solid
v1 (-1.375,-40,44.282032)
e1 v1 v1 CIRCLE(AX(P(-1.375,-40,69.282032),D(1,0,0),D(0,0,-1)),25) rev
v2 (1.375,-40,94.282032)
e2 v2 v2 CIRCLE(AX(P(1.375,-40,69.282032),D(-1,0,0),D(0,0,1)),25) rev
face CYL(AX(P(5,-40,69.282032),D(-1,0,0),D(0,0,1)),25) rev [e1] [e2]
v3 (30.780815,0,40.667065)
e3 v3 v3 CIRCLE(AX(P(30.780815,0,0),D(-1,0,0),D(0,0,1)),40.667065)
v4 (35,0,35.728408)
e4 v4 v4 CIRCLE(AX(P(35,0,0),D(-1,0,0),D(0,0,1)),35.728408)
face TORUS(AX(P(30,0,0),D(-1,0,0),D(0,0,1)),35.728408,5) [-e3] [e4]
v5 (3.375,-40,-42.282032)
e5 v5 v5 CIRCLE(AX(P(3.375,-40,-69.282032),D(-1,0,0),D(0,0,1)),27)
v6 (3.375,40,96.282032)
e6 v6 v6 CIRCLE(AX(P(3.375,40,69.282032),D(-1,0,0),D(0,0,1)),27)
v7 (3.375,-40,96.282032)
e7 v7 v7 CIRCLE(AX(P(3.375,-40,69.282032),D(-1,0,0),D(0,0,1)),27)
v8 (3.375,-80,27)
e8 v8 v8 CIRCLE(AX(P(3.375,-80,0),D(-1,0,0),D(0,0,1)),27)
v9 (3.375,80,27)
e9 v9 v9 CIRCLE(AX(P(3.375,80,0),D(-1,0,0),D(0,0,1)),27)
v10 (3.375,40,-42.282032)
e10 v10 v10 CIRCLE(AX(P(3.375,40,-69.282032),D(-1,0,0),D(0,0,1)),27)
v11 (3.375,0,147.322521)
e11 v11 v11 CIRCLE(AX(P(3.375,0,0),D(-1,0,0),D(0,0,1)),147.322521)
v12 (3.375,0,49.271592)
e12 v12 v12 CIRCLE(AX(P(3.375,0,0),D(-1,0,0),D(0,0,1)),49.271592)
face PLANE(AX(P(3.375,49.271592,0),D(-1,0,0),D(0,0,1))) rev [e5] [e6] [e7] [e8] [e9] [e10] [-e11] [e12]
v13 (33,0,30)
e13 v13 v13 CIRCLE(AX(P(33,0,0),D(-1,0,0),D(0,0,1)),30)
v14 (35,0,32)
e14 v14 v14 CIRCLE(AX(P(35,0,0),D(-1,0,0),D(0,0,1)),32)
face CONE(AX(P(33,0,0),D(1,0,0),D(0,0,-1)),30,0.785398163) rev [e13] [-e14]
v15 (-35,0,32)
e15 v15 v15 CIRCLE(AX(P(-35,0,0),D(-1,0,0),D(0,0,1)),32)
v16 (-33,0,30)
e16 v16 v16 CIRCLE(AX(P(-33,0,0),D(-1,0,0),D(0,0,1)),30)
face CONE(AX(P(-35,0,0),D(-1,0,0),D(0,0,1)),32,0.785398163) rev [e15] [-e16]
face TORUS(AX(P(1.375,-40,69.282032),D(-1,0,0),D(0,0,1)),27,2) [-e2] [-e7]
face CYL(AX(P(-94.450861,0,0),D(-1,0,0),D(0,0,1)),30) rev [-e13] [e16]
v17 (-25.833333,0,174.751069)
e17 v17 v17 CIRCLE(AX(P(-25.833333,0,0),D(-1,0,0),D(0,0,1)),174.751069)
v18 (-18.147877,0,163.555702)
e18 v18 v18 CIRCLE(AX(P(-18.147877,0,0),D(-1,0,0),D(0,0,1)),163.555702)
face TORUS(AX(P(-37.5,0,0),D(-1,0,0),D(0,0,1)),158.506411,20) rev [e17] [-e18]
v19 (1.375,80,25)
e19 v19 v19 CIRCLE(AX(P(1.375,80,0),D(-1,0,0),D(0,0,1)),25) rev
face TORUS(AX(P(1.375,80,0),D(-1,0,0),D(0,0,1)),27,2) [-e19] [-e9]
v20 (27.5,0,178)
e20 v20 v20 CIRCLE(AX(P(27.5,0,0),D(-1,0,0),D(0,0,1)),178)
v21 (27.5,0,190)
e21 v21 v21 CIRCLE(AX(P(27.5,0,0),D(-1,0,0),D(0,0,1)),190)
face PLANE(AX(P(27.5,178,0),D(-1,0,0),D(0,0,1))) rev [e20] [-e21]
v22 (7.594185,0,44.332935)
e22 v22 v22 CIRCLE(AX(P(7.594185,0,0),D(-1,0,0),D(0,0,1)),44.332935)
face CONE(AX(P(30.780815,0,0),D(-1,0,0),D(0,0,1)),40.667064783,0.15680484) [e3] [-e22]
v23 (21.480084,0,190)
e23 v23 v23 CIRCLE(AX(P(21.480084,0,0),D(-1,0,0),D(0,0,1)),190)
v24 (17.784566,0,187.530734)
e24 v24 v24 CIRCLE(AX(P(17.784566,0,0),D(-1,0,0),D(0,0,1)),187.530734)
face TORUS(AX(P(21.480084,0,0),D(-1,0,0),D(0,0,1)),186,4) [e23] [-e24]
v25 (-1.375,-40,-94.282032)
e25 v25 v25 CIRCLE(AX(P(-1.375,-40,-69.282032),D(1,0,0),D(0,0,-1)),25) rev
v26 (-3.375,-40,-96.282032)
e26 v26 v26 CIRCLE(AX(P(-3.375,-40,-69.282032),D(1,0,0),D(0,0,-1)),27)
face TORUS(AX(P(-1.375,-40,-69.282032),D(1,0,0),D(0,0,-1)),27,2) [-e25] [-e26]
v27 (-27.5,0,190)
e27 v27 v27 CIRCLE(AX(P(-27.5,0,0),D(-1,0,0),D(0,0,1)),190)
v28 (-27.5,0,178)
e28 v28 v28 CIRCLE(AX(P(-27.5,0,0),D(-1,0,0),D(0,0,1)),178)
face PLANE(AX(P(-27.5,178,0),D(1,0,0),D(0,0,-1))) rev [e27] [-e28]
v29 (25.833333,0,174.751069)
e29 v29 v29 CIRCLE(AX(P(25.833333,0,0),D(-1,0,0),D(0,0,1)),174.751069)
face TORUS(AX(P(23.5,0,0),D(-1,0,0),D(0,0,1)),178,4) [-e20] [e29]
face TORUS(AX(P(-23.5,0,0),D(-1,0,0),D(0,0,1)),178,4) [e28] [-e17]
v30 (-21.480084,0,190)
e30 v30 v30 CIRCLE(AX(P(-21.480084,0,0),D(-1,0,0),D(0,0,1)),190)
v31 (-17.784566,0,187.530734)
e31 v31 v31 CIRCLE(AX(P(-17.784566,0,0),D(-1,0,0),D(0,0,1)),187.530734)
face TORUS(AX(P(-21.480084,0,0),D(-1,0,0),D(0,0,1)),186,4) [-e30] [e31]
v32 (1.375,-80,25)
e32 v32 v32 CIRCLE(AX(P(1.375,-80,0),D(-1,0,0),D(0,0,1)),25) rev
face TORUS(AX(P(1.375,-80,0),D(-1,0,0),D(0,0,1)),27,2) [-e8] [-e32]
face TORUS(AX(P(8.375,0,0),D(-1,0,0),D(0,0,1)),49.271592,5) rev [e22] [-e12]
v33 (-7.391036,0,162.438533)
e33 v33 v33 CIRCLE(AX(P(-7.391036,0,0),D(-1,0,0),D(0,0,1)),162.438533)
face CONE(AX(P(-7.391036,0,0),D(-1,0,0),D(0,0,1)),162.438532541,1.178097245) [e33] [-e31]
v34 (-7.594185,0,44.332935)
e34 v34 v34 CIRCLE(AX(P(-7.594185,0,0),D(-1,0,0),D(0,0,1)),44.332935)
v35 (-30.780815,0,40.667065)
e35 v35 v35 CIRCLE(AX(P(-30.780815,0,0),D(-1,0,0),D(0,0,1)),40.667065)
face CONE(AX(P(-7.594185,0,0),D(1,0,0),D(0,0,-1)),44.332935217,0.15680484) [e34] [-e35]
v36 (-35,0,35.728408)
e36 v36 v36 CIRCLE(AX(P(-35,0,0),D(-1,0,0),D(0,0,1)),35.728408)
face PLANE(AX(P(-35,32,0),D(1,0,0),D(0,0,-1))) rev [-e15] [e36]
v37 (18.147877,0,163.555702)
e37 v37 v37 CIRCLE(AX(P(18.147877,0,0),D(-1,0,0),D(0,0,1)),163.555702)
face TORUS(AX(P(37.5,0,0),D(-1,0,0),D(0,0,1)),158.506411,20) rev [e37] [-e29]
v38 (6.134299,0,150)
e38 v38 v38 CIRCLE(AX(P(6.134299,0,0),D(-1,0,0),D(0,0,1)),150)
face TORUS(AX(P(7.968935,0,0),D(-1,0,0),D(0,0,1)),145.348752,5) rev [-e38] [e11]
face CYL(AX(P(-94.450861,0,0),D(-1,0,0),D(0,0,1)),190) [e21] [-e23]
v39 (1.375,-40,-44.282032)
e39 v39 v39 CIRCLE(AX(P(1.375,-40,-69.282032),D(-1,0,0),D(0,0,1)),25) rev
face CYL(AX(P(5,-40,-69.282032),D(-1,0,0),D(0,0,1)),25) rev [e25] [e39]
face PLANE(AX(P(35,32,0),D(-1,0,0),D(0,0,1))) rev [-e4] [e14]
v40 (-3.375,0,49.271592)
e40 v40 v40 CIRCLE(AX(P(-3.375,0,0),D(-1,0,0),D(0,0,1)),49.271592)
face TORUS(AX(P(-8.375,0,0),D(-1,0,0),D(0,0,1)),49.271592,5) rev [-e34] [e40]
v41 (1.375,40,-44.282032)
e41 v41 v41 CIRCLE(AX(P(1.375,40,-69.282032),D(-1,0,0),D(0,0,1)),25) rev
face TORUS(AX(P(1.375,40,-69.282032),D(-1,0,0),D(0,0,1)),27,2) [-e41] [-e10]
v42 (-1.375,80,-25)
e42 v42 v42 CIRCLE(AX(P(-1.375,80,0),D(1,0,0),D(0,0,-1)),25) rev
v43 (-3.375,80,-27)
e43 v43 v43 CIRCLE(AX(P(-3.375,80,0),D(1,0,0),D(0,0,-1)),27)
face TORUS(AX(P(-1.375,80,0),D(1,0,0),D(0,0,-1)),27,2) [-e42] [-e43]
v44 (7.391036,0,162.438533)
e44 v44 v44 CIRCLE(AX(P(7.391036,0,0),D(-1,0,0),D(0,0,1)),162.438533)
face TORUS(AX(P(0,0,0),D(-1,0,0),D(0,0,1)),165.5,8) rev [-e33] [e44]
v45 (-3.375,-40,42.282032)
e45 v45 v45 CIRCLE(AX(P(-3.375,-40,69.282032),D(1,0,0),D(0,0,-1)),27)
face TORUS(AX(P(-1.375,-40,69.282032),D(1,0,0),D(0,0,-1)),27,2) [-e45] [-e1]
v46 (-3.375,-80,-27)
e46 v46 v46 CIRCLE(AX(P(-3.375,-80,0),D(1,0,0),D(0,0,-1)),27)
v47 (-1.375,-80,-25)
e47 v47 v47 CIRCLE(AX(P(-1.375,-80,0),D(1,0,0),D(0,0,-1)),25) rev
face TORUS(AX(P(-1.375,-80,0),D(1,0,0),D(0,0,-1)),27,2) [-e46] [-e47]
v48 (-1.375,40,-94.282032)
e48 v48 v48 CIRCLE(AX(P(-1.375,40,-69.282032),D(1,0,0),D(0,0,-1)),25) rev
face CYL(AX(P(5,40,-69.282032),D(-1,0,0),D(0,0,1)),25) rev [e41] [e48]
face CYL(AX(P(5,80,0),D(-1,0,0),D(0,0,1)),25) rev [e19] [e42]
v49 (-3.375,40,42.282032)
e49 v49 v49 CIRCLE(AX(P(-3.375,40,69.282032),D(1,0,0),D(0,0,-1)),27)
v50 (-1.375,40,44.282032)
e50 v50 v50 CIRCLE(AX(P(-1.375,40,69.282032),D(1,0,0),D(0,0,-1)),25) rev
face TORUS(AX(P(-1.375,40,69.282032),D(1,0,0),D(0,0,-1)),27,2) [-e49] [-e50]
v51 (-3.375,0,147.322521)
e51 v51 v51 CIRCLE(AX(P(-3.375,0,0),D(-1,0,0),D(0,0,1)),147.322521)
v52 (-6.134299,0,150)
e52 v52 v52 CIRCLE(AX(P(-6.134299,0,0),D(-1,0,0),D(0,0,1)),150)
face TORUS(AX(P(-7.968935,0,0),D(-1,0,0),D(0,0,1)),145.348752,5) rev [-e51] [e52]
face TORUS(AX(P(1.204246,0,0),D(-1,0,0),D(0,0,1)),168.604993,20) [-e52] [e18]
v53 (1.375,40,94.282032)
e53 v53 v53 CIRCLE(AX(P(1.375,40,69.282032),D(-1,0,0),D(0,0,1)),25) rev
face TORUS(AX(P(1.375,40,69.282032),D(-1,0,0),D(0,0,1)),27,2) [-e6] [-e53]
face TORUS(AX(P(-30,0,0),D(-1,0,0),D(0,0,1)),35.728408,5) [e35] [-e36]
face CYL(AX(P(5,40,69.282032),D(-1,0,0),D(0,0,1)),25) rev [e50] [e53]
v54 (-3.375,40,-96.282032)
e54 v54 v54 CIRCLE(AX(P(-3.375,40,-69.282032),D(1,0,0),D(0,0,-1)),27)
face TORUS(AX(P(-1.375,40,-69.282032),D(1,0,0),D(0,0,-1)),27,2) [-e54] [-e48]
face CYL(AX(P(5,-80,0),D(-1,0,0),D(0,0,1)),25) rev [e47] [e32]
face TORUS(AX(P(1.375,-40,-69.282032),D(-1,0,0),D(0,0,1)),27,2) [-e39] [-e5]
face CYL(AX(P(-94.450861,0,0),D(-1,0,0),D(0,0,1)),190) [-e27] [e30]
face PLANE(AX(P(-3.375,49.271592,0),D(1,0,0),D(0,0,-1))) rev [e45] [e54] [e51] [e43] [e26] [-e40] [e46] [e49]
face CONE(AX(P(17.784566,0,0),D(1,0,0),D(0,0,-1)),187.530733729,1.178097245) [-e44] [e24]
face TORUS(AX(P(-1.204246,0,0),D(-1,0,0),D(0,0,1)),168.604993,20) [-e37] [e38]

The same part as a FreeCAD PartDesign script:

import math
import FreeCAD as App
import Part
import Sketcher

V = App.Vector
Q = App.Units.Quantity


def edges_at(feature, points):
    """Names of the edges that pass closest to the given points."""
    edges = feature.Shape.Edges
    near = lambda p: min(range(len(edges)), key=lambda i: edges[i].distToShape(Part.Vertex(*p))[0])
    return sorted({f"Edge{near(p) + 1}" for p in points})

doc = App.newDocument("Part")
body = doc.addObject("PartDesign::Body", "Body")

sketch1 = body.newObject("Sketcher::SketchObject", "Sketch")
sketch1.AttachmentSupport = (doc.getObject("XY_Plane"), [""])
sketch1.MapMode = "FlatFace"
sketch1.addGeometry([
    Part.LineSegment(V(-33, 30, 0), V(33, 30, 0)),
    Part.LineSegment(V(33, 30, 0), V(35, 32, 0)),
    Part.LineSegment(V(35, 32, 0), V(35, 35.728408, 0)),
    Part.ArcOfCircle(Part.Circle(V(30, 35.728408, 0), V(0, 0, 1), 5), math.radians(0), math.radians(81.015744)),
    Part.LineSegment(V(30.780815, 40.667065, 0), V(7.594185, 44.332935, 0)),
    Part.ArcOfCircle(Part.Circle(V(8.375, 49.271592, 0), V(0, 0, 1), 5), math.radians(180), math.radians(261.015744)),
    Part.LineSegment(V(3.375, 49.271592, 0), V(3.375, 147.322521, 0)),
    Part.ArcOfCircle(Part.Circle(V(7.968935, 145.348752, 0), V(0, 0, 1), 5), math.radians(111.526235), math.radians(156.749379)),
    Part.ArcOfCircle(Part.Circle(V(-1.204246, 168.604993, 0), V(0, 0, 1), 20), math.radians(-68.473765), math.radians(-14.623399)),
    Part.ArcOfCircle(Part.Circle(V(37.5, 158.506411, 0), V(0, 0, 1), 20), math.radians(125.685335), math.radians(165.376601)),
    Part.ArcOfCircle(Part.Circle(V(23.5, 178, 0), V(0, 0, 1), 4), math.radians(-54.314665), math.radians(0)),
    Part.LineSegment(V(27.5, 178, 0), V(27.5, 190, 0)),
    Part.LineSegment(V(27.5, 190, 0), V(21.480084, 190, 0)),
    Part.ArcOfCircle(Part.Circle(V(21.480084, 186, 0), V(0, 0, 1), 4), math.radians(90), math.radians(157.5)),
    Part.LineSegment(V(17.784566, 187.530734, 0), V(7.391036, 162.438533, 0)),
    Part.ArcOfCircle(Part.Circle(V(0, 165.5, 0), V(0, 0, 1), 8), math.radians(-157.5), math.radians(-22.5)),
    Part.LineSegment(V(-7.391036, 162.438533, 0), V(-17.784566, 187.530734, 0)),
    Part.ArcOfCircle(Part.Circle(V(-21.480084, 186, 0), V(0, 0, 1), 4), math.radians(22.5), math.radians(90)),
    Part.LineSegment(V(-21.480084, 190, 0), V(-27.5, 190, 0)),
    Part.LineSegment(V(-27.5, 190, 0), V(-27.5, 178, 0)),
    Part.ArcOfCircle(Part.Circle(V(-23.5, 178, 0), V(0, 0, 1), 4), math.radians(180), math.radians(234.314665)),
    Part.ArcOfCircle(Part.Circle(V(-37.5, 158.506411, 0), V(0, 0, 1), 20), math.radians(14.623399), math.radians(54.314665)),
    Part.ArcOfCircle(Part.Circle(V(1.204246, 168.604993, 0), V(0, 0, 1), 20), math.radians(-165.376601), math.radians(-111.526235)),
    Part.ArcOfCircle(Part.Circle(V(-7.968935, 145.348752, 0), V(0, 0, 1), 5), math.radians(23.250621), math.radians(68.473765)),
    Part.LineSegment(V(-3.375, 147.322521, 0), V(-3.375, 49.271592, 0)),
    Part.ArcOfCircle(Part.Circle(V(-8.375, 49.271592, 0), V(0, 0, 1), 5), math.radians(-81.015744), math.radians(0)),
    Part.LineSegment(V(-7.594185, 44.332935, 0), V(-30.780815, 40.667065, 0)),
    Part.ArcOfCircle(Part.Circle(V(-30, 35.728408, 0), V(0, 0, 1), 5), math.radians(98.984256), math.radians(180)),
    Part.LineSegment(V(-35, 35.728408, 0), V(-35, 32, 0)),
    Part.LineSegment(V(-35, 32, 0), V(-33, 30, 0)),
], False)
sketch1.addConstraint([
    Sketcher.Constraint("Coincident", 0, 2, 1, 1),
    Sketcher.Constraint("Coincident", 1, 2, 2, 1),
    Sketcher.Constraint("Tangent", 2, 2, 3, 1),
    Sketcher.Constraint("Tangent", 3, 2, 4, 1),
    Sketcher.Constraint("Tangent", 4, 2, 5, 2),
    Sketcher.Constraint("Tangent", 5, 1, 6, 1),
    Sketcher.Constraint("Coincident", 6, 2, 7, 2),
    Sketcher.Constraint("Tangent", 7, 1, 8, 1),
    Sketcher.Constraint("Tangent", 8, 2, 9, 2),
    Sketcher.Constraint("Tangent", 9, 1, 10, 1),
    Sketcher.Constraint("Tangent", 10, 2, 11, 1),
    Sketcher.Constraint("Coincident", 11, 2, 12, 1),
    Sketcher.Constraint("Tangent", 12, 2, 13, 1),
    Sketcher.Constraint("Tangent", 13, 2, 14, 1),
    Sketcher.Constraint("Tangent", 14, 2, 15, 2),
    Sketcher.Constraint("Tangent", 15, 1, 16, 1),
    Sketcher.Constraint("Tangent", 16, 2, 17, 1),
    Sketcher.Constraint("Tangent", 17, 2, 18, 1),
    Sketcher.Constraint("Coincident", 18, 2, 19, 1),
    Sketcher.Constraint("Tangent", 19, 2, 20, 1),
    Sketcher.Constraint("Tangent", 20, 2, 21, 2),
    Sketcher.Constraint("Tangent", 21, 1, 22, 1),
    Sketcher.Constraint("Tangent", 22, 2, 23, 2),
    Sketcher.Constraint("Coincident", 23, 1, 24, 1),
    Sketcher.Constraint("Tangent", 24, 2, 25, 2),
    Sketcher.Constraint("Tangent", 25, 1, 26, 1),
    Sketcher.Constraint("Tangent", 26, 2, 27, 1),
    Sketcher.Constraint("Tangent", 27, 2, 28, 1),
    Sketcher.Constraint("Coincident", 28, 2, 29, 1),
    Sketcher.Constraint("Coincident", 29, 2, 0, 1),
    Sketcher.Constraint("Horizontal", 0),
    Sketcher.Constraint("Vertical", 2),
    Sketcher.Constraint("Vertical", 6),
    Sketcher.Constraint("Vertical", 11),
    Sketcher.Constraint("Horizontal", 12),
    Sketcher.Constraint("Horizontal", 18),
    Sketcher.Constraint("Vertical", 19),
    Sketcher.Constraint("Vertical", 24),
    Sketcher.Constraint("Vertical", 28),
    Sketcher.Constraint("Equal", 3, 5),
    Sketcher.Constraint("Equal", 5, 7),
    Sketcher.Constraint("Equal", 8, 9),
    Sketcher.Constraint("Equal", 10, 13),
    Sketcher.Constraint("Equal", 13, 17),
    Sketcher.Constraint("Equal", 17, 20),
    Sketcher.Constraint("Equal", 9, 21),
    Sketcher.Constraint("Equal", 21, 22),
    Sketcher.Constraint("Equal", 7, 23),
    Sketcher.Constraint("Equal", 23, 25),
    Sketcher.Constraint("Equal", 25, 27),
    Sketcher.Constraint("Symmetric", 13, 3, 17, 3, -2),
    Sketcher.Constraint("Symmetric", 10, 3, 20, 3, -2),
    Sketcher.Constraint("Symmetric", 8, 3, 22, 3, -2),
    Sketcher.Constraint("Symmetric", 5, 3, 25, 3, -2),
    Sketcher.Constraint("Symmetric", 3, 3, 27, 3, -2),
    Sketcher.Constraint("PointOnObject", 15, 3, -2),
    Sketcher.Constraint("Perpendicular", 1, 29),
    Sketcher.Constraint("Horizontal", 7, 3, 23, 3),
    Sketcher.Constraint("Horizontal", 1, 2, 28, 2),
    Sketcher.Constraint("Equal", 1, 29),
    Sketcher.Constraint("Radius", 3, Q("5 mm")),
    Sketcher.Constraint("Radius", 8, Q("20 mm")),
    Sketcher.Constraint("Radius", 10, Q("4 mm")),
    Sketcher.Constraint("Radius", 15, Q("8 mm")),
    Sketcher.Constraint("DistanceX", 0, 1, 0, 2, Q("66 mm")),
    Sketcher.Constraint("DistanceY", 11, 1, 11, 2, Q("12 mm")),
    Sketcher.Constraint("DistanceX", -1, 1, 3, 3, Q("30 mm")),
    Sketcher.Constraint("DistanceY", -1, 1, 10, 3, Q("178 mm")),
    Sketcher.Constraint("DistanceY", -1, 1, 0, 2, Q("30 mm")),
    Sketcher.Constraint("DistanceY", -1, 1, 7, 1, Q("150 mm")),
    Sketcher.Constraint("Angle", 14, Q("-112.5 deg")),
    Sketcher.Constraint("DistanceX", 10, 3, 9, 3, Q("14 mm")),
    Sketcher.Constraint("DistanceX", -1, 1, 9, 3, Q("37.5 mm")),
    Sketcher.Constraint("DistanceY", -1, 1, 15, 3, Q("165.5 mm")),
    Sketcher.Constraint("DistanceX", 25, 3, 5, 3, Q("16.75 mm")),
    Sketcher.Constraint("DistanceY", 2, 1, 2, 2, Q("3.728408 mm")),
    Sketcher.Constraint("DistanceY", 6, 1, 6, 2, Q("98.050929 mm")),
    Sketcher.Constraint("DistanceX", -1, 1, 7, 1, Q("6.134299 mm")),
])
revolution = body.newObject("PartDesign::Revolution", "Revolution")
revolution.Profile = sketch1
revolution.ReferenceAxis = (sketch1, ["H_Axis"])
revolution.Angle = 360

sketch2 = body.newObject("Sketcher::SketchObject", "Sketch001")
sketch2.AttachmentSupport = (doc.getObject("YZ_Plane"), [""])
sketch2.MapMode = "FlatFace"
sketch2.addGeometry([
    Part.Circle(V(80, 0, 0), V(0, 0, 1), 25),
    Part.Circle(V(40, -69.282032, 0), V(0, 0, 1), 25),
    Part.Circle(V(-40, -69.282032, 0), V(0, 0, 1), 25),
    Part.Circle(V(-80, 0, 0), V(0, 0, 1), 25),
    Part.Circle(V(-40, 69.282032, 0), V(0, 0, 1), 25),
    Part.Circle(V(40, 69.282032, 0), V(0, 0, 1), 25),
], False)
sketch2.addConstraint([
    Sketcher.Constraint("Equal", 0, 1),
    Sketcher.Constraint("Equal", 1, 2),
    Sketcher.Constraint("Equal", 2, 3),
    Sketcher.Constraint("Equal", 3, 4),
    Sketcher.Constraint("Equal", 4, 5),
    Sketcher.Constraint("Symmetric", 0, 3, 3, 3, -1, 1),
    Sketcher.Constraint("Symmetric", 1, 3, 4, 3, -1, 1),
    Sketcher.Constraint("Symmetric", 2, 3, 5, 3, -1, 1),
    Sketcher.Constraint("Symmetric", 1, 3, 2, 3, -2),
    Sketcher.Constraint("PointOnObject", 0, 3, -1),
    Sketcher.Constraint("Diameter", 0, Q("50 mm")),
    Sketcher.Constraint("DistanceX", -1, 1, 0, 3, Q("80 mm")),
    Sketcher.Constraint("DistanceX", -1, 1, 1, 3, Q("40 mm")),
    Sketcher.Constraint("DistanceY", 1, 3, -1, 1, Q("69.282032 mm")),
])
pocket1 = body.newObject("PartDesign::Pocket", "Pocket")
pocket1.Profile = sketch2
pocket1.Length = 10
pocket1.Midplane = True
doc.recompute()

fillet = body.newObject("PartDesign::Fillet", "Fillet")
fillet.Base = (pocket1, edges_at(pocket1, [
    (3.375, 80, -25),
    (-3.375, 80, -25),
    (3.375, 40, -94.282),
    (-3.375, 40, -94.282),
    (3.375, -40, -94.282),
    (-3.375, -40, -94.282),
    (3.375, -80, -25),
    (-3.375, -80, -25),
    (3.375, -40, 44.282),
    (-3.375, -40, 44.282),
    (3.375, 40, 44.282),
    (-3.375, 40, 44.282),
]))
fillet.Radius = 2

doc.recompute()
